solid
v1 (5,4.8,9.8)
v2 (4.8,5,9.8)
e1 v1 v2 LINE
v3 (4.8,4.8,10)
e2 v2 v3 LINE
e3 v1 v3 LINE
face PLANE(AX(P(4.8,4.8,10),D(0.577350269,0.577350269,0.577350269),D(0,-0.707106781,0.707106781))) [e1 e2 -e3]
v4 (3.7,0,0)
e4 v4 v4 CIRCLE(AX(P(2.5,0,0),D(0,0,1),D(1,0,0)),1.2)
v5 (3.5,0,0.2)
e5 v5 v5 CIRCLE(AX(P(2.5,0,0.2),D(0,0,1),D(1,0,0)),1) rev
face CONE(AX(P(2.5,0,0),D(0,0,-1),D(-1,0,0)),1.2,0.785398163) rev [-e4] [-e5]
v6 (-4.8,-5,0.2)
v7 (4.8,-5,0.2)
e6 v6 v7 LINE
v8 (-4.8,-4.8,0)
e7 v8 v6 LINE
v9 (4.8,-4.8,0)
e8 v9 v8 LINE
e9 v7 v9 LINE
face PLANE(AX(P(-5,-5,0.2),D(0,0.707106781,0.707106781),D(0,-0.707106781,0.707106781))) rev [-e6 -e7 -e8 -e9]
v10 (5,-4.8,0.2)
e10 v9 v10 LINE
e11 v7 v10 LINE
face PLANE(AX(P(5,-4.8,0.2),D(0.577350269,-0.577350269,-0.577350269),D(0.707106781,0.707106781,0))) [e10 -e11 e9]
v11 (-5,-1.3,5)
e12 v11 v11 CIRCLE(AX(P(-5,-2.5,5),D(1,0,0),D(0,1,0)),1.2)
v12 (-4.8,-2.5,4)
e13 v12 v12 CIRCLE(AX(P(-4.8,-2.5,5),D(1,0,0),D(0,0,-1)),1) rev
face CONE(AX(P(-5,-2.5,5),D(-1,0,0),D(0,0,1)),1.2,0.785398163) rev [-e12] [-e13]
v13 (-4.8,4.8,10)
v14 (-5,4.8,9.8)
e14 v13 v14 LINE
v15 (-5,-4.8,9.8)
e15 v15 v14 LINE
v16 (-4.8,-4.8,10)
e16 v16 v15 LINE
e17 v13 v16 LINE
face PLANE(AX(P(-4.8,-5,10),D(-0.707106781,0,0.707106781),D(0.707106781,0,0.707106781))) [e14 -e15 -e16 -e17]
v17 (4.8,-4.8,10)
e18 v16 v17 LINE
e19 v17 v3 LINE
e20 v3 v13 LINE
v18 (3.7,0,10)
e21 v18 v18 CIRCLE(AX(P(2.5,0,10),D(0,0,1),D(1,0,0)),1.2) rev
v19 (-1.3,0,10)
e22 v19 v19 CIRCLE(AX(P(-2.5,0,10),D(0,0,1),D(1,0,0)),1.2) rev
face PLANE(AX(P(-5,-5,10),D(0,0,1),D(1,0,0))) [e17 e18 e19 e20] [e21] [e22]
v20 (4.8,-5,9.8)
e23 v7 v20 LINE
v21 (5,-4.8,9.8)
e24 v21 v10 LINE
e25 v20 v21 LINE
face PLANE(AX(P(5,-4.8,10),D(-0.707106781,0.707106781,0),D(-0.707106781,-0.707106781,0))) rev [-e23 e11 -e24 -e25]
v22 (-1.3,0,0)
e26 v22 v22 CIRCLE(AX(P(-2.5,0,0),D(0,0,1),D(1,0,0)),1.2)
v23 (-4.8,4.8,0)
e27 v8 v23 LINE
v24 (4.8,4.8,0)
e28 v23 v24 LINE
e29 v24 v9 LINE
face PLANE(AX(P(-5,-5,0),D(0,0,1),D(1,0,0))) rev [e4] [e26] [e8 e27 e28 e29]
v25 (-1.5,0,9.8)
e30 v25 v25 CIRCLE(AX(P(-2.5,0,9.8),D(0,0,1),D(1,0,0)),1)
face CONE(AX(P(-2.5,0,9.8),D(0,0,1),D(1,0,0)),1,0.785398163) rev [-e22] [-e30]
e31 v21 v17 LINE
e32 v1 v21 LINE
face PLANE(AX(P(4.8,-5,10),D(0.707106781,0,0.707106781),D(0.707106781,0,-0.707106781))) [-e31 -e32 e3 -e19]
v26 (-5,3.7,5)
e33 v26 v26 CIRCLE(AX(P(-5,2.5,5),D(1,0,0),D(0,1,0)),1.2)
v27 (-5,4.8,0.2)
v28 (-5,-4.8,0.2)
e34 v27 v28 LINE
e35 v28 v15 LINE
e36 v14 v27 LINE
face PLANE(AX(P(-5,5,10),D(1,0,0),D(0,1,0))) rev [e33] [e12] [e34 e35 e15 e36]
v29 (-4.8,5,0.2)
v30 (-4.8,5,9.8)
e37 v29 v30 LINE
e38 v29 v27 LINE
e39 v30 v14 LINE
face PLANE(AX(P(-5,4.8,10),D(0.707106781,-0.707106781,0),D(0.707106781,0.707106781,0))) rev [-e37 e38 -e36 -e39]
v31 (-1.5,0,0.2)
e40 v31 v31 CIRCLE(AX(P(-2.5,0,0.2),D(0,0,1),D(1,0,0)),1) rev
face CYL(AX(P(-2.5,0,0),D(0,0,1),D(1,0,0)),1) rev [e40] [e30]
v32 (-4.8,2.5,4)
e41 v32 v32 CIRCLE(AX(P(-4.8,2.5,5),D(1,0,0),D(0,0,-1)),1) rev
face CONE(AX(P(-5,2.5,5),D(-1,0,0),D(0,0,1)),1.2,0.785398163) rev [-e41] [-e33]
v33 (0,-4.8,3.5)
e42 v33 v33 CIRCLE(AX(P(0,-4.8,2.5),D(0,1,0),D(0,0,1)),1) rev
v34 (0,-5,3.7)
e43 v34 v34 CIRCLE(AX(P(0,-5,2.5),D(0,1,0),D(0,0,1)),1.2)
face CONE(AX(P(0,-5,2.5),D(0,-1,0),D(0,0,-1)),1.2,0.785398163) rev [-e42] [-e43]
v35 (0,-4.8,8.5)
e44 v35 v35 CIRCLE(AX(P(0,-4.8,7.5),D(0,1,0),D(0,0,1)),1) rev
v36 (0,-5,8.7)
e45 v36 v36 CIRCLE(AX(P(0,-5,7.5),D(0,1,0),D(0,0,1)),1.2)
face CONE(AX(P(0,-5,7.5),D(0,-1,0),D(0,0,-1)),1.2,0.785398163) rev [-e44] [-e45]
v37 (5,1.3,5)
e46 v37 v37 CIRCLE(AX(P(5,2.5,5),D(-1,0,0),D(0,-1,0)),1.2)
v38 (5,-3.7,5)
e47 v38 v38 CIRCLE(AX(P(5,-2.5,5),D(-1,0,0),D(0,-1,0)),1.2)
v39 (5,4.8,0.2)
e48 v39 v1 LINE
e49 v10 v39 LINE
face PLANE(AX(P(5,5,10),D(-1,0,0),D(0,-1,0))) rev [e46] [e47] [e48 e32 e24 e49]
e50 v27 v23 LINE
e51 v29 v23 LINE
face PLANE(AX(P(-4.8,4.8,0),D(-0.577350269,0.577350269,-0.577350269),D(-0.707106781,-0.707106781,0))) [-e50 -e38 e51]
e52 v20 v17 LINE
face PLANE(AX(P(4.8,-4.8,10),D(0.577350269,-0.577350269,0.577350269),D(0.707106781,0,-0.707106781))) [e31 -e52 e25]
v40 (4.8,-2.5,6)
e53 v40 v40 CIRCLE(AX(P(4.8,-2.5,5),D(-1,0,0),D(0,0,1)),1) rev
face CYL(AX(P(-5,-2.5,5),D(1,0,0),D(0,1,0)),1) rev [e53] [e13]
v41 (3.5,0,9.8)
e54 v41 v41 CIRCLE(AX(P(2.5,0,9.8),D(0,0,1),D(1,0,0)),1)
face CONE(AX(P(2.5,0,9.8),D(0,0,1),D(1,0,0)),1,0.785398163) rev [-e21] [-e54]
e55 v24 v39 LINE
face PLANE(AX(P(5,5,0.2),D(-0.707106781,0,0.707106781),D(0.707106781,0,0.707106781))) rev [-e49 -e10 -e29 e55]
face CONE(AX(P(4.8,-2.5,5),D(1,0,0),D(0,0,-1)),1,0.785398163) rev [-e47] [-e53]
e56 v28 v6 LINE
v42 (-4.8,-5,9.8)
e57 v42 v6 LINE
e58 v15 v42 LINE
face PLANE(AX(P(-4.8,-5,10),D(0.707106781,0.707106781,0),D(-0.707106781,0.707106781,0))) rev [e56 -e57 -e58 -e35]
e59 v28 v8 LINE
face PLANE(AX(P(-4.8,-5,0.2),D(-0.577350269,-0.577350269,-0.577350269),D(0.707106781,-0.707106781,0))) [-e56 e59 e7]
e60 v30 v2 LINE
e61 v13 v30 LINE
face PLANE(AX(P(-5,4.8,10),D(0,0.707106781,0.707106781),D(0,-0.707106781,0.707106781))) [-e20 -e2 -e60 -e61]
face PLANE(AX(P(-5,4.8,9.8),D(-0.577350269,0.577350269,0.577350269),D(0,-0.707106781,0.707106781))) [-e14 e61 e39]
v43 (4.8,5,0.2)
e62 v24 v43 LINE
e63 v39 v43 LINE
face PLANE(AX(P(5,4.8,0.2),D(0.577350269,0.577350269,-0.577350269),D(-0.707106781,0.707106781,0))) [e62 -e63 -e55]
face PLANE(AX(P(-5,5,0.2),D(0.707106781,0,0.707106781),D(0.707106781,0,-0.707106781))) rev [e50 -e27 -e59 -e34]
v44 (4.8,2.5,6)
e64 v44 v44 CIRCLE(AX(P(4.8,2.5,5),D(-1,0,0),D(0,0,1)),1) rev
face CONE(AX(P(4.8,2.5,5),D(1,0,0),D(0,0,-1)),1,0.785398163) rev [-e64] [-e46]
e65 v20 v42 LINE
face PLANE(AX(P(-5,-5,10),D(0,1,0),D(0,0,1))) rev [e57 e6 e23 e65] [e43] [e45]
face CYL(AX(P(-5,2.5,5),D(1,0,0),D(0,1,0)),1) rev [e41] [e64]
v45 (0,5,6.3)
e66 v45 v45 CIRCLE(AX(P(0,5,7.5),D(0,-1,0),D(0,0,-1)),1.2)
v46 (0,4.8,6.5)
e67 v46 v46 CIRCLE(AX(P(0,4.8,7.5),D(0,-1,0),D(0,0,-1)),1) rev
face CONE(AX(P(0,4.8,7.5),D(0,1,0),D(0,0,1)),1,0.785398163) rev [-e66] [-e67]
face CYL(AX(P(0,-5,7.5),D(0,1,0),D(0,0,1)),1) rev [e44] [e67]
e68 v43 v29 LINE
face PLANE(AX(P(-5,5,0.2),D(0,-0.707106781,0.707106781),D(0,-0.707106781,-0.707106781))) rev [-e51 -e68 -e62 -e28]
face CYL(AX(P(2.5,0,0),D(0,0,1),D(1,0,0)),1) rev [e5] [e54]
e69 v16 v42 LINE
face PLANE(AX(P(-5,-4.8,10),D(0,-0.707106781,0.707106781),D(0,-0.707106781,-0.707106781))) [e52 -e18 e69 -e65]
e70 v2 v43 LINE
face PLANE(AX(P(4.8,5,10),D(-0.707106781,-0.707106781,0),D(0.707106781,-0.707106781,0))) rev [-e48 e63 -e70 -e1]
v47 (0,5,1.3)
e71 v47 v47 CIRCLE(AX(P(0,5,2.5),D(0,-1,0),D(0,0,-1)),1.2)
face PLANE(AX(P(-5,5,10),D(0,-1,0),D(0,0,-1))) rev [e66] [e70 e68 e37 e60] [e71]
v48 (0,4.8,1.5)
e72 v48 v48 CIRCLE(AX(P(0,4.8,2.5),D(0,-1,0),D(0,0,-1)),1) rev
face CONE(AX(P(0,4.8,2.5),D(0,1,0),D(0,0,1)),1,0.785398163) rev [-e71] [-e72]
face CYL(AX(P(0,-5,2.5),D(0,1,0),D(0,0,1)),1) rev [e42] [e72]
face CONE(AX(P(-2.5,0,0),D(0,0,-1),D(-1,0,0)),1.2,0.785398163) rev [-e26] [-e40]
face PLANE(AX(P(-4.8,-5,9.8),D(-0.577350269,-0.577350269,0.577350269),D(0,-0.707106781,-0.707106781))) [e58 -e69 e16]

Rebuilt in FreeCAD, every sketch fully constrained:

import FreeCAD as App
import Part
import Sketcher
from FreeCAD import Vector


def edges_at(feature, points):
    """Names of the edges that pass closest to the given points."""
    edges = feature.Shape.Edges
    near = lambda p: min(range(len(edges)), key=lambda i: edges[i].distToShape(Part.Vertex(*p))[0])
    return sorted({f"Edge{near(p) + 1}" for p in points})

doc = App.newDocument("Part")
body = doc.addObject("PartDesign::Body", "Body")

sketch1 = doc.addObject("Sketcher::SketchObject", "Sketch")
body.addObject(sketch1)
sketch1.AttachmentSupport = (doc.XY_Plane, [""])
sketch1.MapMode = "FlatFace"
sketch1.addGeometry([
    Part.LineSegment(Vector(-5, 5, 0), Vector(-5, -5, 0)),
    Part.LineSegment(Vector(-5, -5, 0), Vector(5, -5, 0)),
    Part.LineSegment(Vector(5, -5, 0), Vector(5, 5, 0)),
    Part.LineSegment(Vector(5, 5, 0), Vector(-5, 5, 0)),
], False)
sketch1.addConstraint([
    Sketcher.Constraint("Coincident", 0, 2, 1, 1),
    Sketcher.Constraint("Coincident", 1, 2, 2, 1),
    Sketcher.Constraint("Coincident", 2, 2, 3, 1),
    Sketcher.Constraint("Coincident", 3, 2, 0, 1),
    Sketcher.Constraint("Vertical", 0),
    Sketcher.Constraint("Horizontal", 1),
    Sketcher.Constraint("Vertical", 2),
    Sketcher.Constraint("Horizontal", 3),
    Sketcher.Constraint("Symmetric", 0, 2, 2, 2, -1, 1),
    Sketcher.Constraint("Equal", 3, 0),
    Sketcher.Constraint("DistanceX", 1, 1, 1, 2, 10.0),
])
pad1 = doc.addObject("PartDesign::Pad", "Pad")
body.addObject(pad1)
pad1.Profile = sketch1
pad1.Length = 10

sketch2 = doc.addObject("Sketcher::SketchObject", "Sketch001")
body.addObject(sketch2)
sketch2.AttachmentSupport = (doc.XY_Plane, [""])
sketch2.MapMode = "FlatFace"
sketch2.AttachmentOffset = App.Placement(Vector(0, 0, 10), App.Rotation())
sketch2.addGeometry([
    Part.Circle(Vector(-2.5, 0, 0), Vector(0, 0, 1), 1),
    Part.Circle(Vector(2.5, 0, 0), Vector(0, 0, 1), 1),
], False)
sketch2.addConstraint([
    Sketcher.Constraint("Equal", 0, 1),
    Sketcher.Constraint("Symmetric", 0, 3, 1, 3, -1, 1),
    Sketcher.Constraint("PointOnObject", 0, 3, -1),
    Sketcher.Constraint("Diameter", 0, 2.0),
    Sketcher.Constraint("DistanceX", 0, 3, 1, 3, 5.0),
])
pocket1 = doc.addObject("PartDesign::Pocket", "Pocket")
body.addObject(pocket1)
pocket1.Profile = sketch2
pocket1.Type = "ThroughAll"

sketch3 = doc.addObject("Sketcher::SketchObject", "Sketch002")
body.addObject(sketch3)
sketch3.AttachmentSupport = (doc.XZ_Plane, [""])
sketch3.MapMode = "FlatFace"
sketch3.AttachmentOffset = App.Placement(Vector(0, 0, -5), App.Rotation())
sketch3.addGeometry([
    Part.Circle(Vector(0, 7.5, 0), Vector(0, 0, 1), 1),
    Part.Circle(Vector(0, 2.5, 0), Vector(0, 0, 1), 1),
], False)
sketch3.addConstraint([
    Sketcher.Constraint("Equal", 0, 1),
    Sketcher.Constraint("PointOnObject", 0, 3, -2),
    Sketcher.Constraint("PointOnObject", 1, 3, -2),
    Sketcher.Constraint("Diameter", 0, 2.0),
    Sketcher.Constraint("DistanceY", 1, 3, 0, 3, 5.0),
    Sketcher.Constraint("DistanceY", -1, 1, 0, 3, 7.5),
])
pocket2 = doc.addObject("PartDesign::Pocket", "Pocket001")
body.addObject(pocket2)
pocket2.Profile = sketch3
pocket2.Type = "ThroughAll"
pocket2.Reversed = True

sketch4 = doc.addObject("Sketcher::SketchObject", "Sketch003")
body.addObject(sketch4)
sketch4.AttachmentSupport = (doc.YZ_Plane, [""])
sketch4.MapMode = "FlatFace"
sketch4.AttachmentOffset = App.Placement(Vector(0, 0, 5), App.Rotation())
sketch4.addGeometry([
    Part.Circle(Vector(2.5, 5, 0), Vector(0, 0, 1), 1),
    Part.Circle(Vector(-2.5, 5, 0), Vector(0, 0, 1), 1),
], False)
sketch4.addConstraint([
    Sketcher.Constraint("Equal", 0, 1),
    Sketcher.Constraint("Symmetric", 0, 3, 1, 3, -2),
    Sketcher.Constraint("Diameter", 0, 2.0),
    Sketcher.Constraint("DistanceY", -1, 1, 0, 3, 5.0),
    Sketcher.Constraint("DistanceX", 1, 3, 0, 3, 5.0),
])
pocket3 = doc.addObject("PartDesign::Pocket", "Pocket002")
body.addObject(pocket3)
pocket3.Profile = sketch4
pocket3.Type = "ThroughAll"
doc.recompute()

chamfer = doc.addObject("PartDesign::Chamfer", "Chamfer")
body.addObject(chamfer)
chamfer.Base = (pocket3, edges_at(pocket3, [
    (5, 0, 10),
    (0, 5, 10),
    (-5, 0, 10),
    (0, 5, 0),
    (5, 0, 0),
    (0, -5, 0),
    (-5, 0, 0),
    (0, -5, 10),
    (-5, 5, 5),
    (5, 5, 5),
    (5, -5, 5),
    (-5, -5, 5),
]))
chamfer.Size = 0.2
doc.recompute()

chamfer2 = doc.addObject("PartDesign::Chamfer", "Chamfer001")
body.addObject(chamfer2)
chamfer2.Base = (chamfer, edges_at(chamfer, [
    (-3.5, 0, 0),
    (-3.5, 0, 10),
    (3.5, 0, 0),
    (3.5, 0, 10),
    (0, -5, 8.5),
    (0, 5, 8.5),
    (0, -5, 1.5),
    (0, 5, 1.5),
    (-5, 1.5, 5),
    (5, 1.5, 5),
    (-5, -1.5, 5),
    (5, -1.5, 5),
]))
chamfer2.Size = 0.2

doc.recompute()
